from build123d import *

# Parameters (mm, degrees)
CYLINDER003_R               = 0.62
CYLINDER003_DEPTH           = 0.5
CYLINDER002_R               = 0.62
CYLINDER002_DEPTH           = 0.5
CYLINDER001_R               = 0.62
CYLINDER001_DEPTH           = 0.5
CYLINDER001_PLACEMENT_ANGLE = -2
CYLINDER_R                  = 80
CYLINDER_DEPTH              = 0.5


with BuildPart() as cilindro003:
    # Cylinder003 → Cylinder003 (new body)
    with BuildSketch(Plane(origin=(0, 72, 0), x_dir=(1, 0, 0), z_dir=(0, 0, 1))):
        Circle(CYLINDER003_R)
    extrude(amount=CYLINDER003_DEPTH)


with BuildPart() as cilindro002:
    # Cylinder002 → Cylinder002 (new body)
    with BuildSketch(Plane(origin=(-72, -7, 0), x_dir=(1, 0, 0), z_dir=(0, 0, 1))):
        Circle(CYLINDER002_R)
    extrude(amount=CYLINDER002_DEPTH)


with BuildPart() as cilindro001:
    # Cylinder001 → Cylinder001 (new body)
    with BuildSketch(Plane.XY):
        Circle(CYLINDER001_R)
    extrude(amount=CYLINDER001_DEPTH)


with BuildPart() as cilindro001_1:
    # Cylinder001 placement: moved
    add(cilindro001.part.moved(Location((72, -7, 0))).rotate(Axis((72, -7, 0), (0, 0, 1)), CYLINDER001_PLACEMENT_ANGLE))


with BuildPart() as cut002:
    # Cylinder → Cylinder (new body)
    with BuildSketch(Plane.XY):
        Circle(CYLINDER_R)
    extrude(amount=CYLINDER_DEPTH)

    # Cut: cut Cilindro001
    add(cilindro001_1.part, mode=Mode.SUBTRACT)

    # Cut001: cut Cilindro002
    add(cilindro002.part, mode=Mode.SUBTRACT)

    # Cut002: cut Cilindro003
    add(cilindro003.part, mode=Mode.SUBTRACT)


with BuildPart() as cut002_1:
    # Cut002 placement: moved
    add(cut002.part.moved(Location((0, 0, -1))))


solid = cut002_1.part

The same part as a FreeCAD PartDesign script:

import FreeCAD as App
import Part
import Sketcher
Q = App.Units.Quantity

doc = App.newDocument("Part")
body = doc.addObject("PartDesign::Body", "Body")

sketch1 = body.newObject("Sketcher::SketchObject", "Sketch")
sketch1.AttachmentSupport = (doc.getObject("XY_Plane"), [""])
sketch1.MapMode = "FlatFace"
sketch1.addGeometry(Part.Circle(App.Vector(0, 72, 0), App.Vector(0, 0, 1), 0.6), False)
sketch1.addConstraint([
    Sketcher.Constraint("PointOnObject", 0, 3, -2),
    Sketcher.Constraint("Diameter", 0, Q("1.24 mm")),
    Sketcher.Constraint("DistanceY", -1, 1, 0, 3, Q("72 mm")),
])
pad1 = body.newObject("PartDesign::Pad", "Pad")
pad1.Profile = sketch1
pad1.Length = 0.5
body2 = doc.addObject("PartDesign::Body", "Body001")

sketch2 = body2.newObject("Sketcher::SketchObject", "Sketch001")
sketch2.AttachmentSupport = (doc.getObject("XY_Plane001"), [""])
sketch2.MapMode = "FlatFace"
sketch2.addGeometry(Part.Circle(App.Vector(-72, -7, 0), App.Vector(0, 0, 1), 0.6), False)
sketch2.addConstraint([
    Sketcher.Constraint("Diameter", 0, Q("1.24 mm")),
    Sketcher.Constraint("DistanceX", 0, 3, -1, 1, Q("72 mm")),
    Sketcher.Constraint("DistanceY", 0, 3, -1, 1, Q("7 mm")),
])
pad2 = body2.newObject("PartDesign::Pad", "Pad001")
pad2.Profile = sketch2
pad2.Length = 0.5
body3 = doc.addObject("PartDesign::Body", "Body002")

sketch3 = body3.newObject("Sketcher::SketchObject", "Sketch002")
sketch3.AttachmentSupport = (doc.getObject("XY_Plane002"), [""])
sketch3.MapMode = "FlatFace"
sketch3.addGeometry(Part.Circle(App.Vector(0, 0, 0), App.Vector(0, 0, 1), 0.6), False)
sketch3.addConstraint([
    Sketcher.Constraint("Coincident", 0, 3, -1, 1),
    Sketcher.Constraint("Diameter", 0, Q("1.24 mm")),
])
pad3 = body3.newObject("PartDesign::Pad", "Pad002")
pad3.Profile = sketch3
pad3.Length = 0.5
body4 = doc.addObject("PartDesign::Body", "Body003")
doc.recompute()

body3.Placement = App.Placement(App.Vector(72, -7, 0), App.Rotation(App.Vector(0, 0, 1), 358))
boolean = body4.newObject("PartDesign::Boolean", "Boolean")
boolean.Type = "Fuse"
boolean.addObjects([body3])
body5 = doc.addObject("PartDesign::Body", "Body004")

sketch4 = body5.newObject("Sketcher::SketchObject", "Sketch003")
sketch4.AttachmentSupport = (doc.getObject("XY_Plane004"), [""])
sketch4.MapMode = "FlatFace"
sketch4.addGeometry(Part.Circle(App.Vector(0, 0, 0), App.Vector(0, 0, 1), 80), False)
sketch4.addConstraint([
    Sketcher.Constraint("Coincident", 0, 3, -1, 1),
    Sketcher.Constraint("Diameter", 0, Q("160 mm")),
])
pad4 = body5.newObject("PartDesign::Pad", "Pad003")
pad4.Profile = sketch4
pad4.Length = 0.5
doc.recompute()

boolean2 = body5.newObject("PartDesign::Boolean", "Boolean001")
boolean2.Type = "Cut"
boolean2.addObjects([body4])
doc.recompute()

boolean3 = body5.newObject("PartDesign::Boolean", "Boolean002")
boolean3.Type = "Cut"
boolean3.addObjects([body2])
doc.recompute()

boolean4 = body5.newObject("PartDesign::Boolean", "Boolean003")
boolean4.Type = "Cut"
boolean4.addObjects([body])
body6 = doc.addObject("PartDesign::Body", "Body005")
doc.recompute()

body5.Placement = App.Placement(App.Vector(0, 0, -1), App.Rotation(App.Vector(0, 0, 1), 0))
boolean5 = body6.newObject("PartDesign::Boolean", "Boolean004")
boolean5.Type = "Fuse"
boolean5.addObjects([body5])

doc.recompute()
